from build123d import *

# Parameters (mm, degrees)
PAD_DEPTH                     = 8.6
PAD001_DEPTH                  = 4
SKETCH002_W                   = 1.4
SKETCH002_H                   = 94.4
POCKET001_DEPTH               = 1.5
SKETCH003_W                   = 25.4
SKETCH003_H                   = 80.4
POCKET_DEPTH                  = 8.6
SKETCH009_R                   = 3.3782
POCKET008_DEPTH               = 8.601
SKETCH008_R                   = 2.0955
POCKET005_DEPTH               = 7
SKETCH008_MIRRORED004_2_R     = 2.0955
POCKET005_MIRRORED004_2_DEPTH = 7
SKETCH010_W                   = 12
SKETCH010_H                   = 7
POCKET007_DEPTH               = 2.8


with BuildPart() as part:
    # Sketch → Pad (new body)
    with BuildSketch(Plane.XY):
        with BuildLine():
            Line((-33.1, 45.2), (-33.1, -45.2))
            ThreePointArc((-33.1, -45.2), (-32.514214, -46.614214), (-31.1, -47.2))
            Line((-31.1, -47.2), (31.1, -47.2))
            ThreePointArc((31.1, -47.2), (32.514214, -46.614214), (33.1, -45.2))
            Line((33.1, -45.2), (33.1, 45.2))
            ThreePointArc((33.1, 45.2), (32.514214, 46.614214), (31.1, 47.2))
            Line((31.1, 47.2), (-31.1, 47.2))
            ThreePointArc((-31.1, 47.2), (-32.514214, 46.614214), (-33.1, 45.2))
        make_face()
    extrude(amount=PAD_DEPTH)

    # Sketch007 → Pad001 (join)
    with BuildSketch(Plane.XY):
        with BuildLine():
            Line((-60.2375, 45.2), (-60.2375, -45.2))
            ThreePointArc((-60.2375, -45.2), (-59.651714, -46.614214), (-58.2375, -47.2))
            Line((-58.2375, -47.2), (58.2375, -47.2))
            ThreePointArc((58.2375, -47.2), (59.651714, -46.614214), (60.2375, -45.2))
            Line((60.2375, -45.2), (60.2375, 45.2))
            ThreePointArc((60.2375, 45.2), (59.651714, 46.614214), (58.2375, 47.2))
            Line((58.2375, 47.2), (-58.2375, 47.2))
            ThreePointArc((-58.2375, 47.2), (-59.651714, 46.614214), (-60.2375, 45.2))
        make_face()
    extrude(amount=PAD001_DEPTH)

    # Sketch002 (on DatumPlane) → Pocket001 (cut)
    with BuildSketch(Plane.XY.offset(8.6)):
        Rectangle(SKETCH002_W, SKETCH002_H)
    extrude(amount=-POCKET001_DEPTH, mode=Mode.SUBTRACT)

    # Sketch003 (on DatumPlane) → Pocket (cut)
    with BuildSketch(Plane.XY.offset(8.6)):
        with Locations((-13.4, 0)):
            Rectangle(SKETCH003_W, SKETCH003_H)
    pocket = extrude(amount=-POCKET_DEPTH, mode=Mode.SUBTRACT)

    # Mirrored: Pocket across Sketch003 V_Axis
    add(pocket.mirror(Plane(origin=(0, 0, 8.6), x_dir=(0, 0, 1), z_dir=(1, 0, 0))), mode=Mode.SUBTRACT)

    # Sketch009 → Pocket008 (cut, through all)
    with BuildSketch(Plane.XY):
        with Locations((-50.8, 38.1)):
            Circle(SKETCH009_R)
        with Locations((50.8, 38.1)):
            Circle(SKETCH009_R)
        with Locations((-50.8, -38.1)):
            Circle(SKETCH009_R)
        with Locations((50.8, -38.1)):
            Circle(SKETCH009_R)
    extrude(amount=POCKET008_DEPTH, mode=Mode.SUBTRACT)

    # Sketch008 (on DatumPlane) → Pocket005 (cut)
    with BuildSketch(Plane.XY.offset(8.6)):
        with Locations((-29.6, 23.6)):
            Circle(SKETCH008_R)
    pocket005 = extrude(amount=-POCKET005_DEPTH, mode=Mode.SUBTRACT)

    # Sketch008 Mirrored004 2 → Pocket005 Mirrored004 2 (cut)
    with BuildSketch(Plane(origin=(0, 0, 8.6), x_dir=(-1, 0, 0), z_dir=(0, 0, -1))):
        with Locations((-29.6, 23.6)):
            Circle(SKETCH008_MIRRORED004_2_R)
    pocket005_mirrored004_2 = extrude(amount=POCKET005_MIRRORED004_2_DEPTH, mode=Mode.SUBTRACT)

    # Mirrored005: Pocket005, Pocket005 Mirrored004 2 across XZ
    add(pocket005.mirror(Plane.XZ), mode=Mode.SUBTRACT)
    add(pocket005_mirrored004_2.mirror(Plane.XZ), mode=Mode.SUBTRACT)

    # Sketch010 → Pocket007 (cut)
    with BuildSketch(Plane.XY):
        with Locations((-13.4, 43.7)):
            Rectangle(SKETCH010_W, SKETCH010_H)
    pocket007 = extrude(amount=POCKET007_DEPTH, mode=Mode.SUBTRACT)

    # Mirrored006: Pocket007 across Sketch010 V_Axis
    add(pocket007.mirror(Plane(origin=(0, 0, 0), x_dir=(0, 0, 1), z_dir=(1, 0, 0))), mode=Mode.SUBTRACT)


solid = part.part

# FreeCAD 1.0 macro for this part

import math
import FreeCAD as App
import Part
import Sketcher


def add_polygon(sketch, points):
    """Adds a closed chain of lines whose ends are joined by coincident constraints."""
    first, n = sketch.GeometryCount, len(points)
    for a, b in zip(points, points[1:] + points[:1]):
        sketch.addGeometry(Part.LineSegment(App.Vector(*a, 0), App.Vector(*b, 0)), False)
    for i in range(n):
        sketch.addConstraint(Sketcher.Constraint("Coincident", first + i, 2, first + (i + 1) % n, 1))

doc = App.newDocument("Part")
params = doc.addObject("Spreadsheet::Sheet", "Params")
for row, (alias, value) in enumerate([
    ("sketch1_radius", "1.999999 mm"),
    ("sketch1_width", "62.2 mm"),
    ("sketch1_height", "90.4 mm"),
    ("pad1_length", "8.6 mm"),
    ("sketch2_radius", "1.999999 mm"),
    ("sketch2_height", "90.4 mm"),
    ("pad2_length", "4 mm"),
    ("sketch3_width", "1.4 mm"),
    ("sketch3_height", "94.4 mm"),
    ("pocket1_length", "1.5 mm"),
    ("sketch4_width", "25.4 mm"),
    ("sketch4_height", "80.4 mm"),
    ("pocket2_length", "8.6 mm"),
    ("pocket4_length", "7 mm"),
    ("pocket5_length", "7 mm"),
    ("sketch8_width", "12 mm"),
    ("sketch8_height", "7 mm"),
    ("pocket6_length", "2.8 mm"),
], start=1):
    params.set(f"A{row}", alias)
    params.set(f"B{row}", "=" + value)
    params.setAlias(f"B{row}", alias)

body = doc.addObject("PartDesign::Body", "Body")

# Sketch on XY plane
sketch1 = body.newObject("Sketcher::SketchObject", "Sketch")
sketch1.AttachmentSupport = (doc.getObject("XY_Plane"), [""])
sketch1.MapMode = "FlatFace"
sketch1.addGeometry([
    Part.LineSegment(App.Vector(-33.1, 45.2, 0), App.Vector(-33.1, -45.2, 0)),  # 0
    Part.ArcOfCircle(Part.Circle(App.Vector(-31.1, -45.2, 0), App.Vector(0, 0, 1), 2), math.radians(180), math.radians(270)),  # 1
    Part.LineSegment(App.Vector(-31.1, -47.2, 0), App.Vector(31.1, -47.2, 0)),  # 2
    Part.ArcOfCircle(Part.Circle(App.Vector(31.1, -45.2, 0), App.Vector(0, 0, 1), 2), math.radians(-90), math.radians(0)),  # 3
    Part.LineSegment(App.Vector(33.1, -45.2, 0), App.Vector(33.1, 45.2, 0)),  # 4
    Part.ArcOfCircle(Part.Circle(App.Vector(31.1, 45.2, 0), App.Vector(0, 0, 1), 2), math.radians(0), math.radians(90)),  # 5
    Part.LineSegment(App.Vector(31.1, 47.2, 0), App.Vector(-31.1, 47.2, 0)),  # 6
    Part.ArcOfCircle(Part.Circle(App.Vector(-31.1, 45.2, 0), App.Vector(0, 0, 1), 2), math.radians(90), math.radians(180)),  # 7
], False)
sketch1.addConstraint([
    Sketcher.Constraint("Tangent", 0, 2, 1, 1),
    Sketcher.Constraint("Tangent", 1, 2, 2, 1),
    Sketcher.Constraint("Tangent", 2, 2, 3, 1),
    Sketcher.Constraint("Tangent", 3, 2, 4, 1),
    Sketcher.Constraint("Tangent", 4, 2, 5, 1),
    Sketcher.Constraint("Tangent", 5, 2, 6, 1),
    Sketcher.Constraint("Tangent", 6, 2, 7, 1),
    Sketcher.Constraint("Tangent", 7, 2, 0, 1),
    Sketcher.Constraint("Vertical", 0),
    Sketcher.Constraint("Horizontal", 2),
    Sketcher.Constraint("Vertical", 4),
    Sketcher.Constraint("Horizontal", 6),
    Sketcher.Constraint("Equal", 1, 3),
    Sketcher.Constraint("Equal", 3, 5),
    Sketcher.Constraint("Equal", 5, 7),
    Sketcher.Constraint("Symmetric", 1, 3, 5, 3, -1, 1),
    Sketcher.Constraint("Radius", 1, 1.999999),
    Sketcher.Constraint("DistanceX", 2, 1, 2, 2, 62.2),
    Sketcher.Constraint("DistanceY", 0, 2, 0, 1, 90.4),
])
sketch1.setExpression("Constraints[16]", "Params.sketch1_radius")
sketch1.setExpression("Constraints[17]", "Params.sketch1_width")
sketch1.setExpression("Constraints[18]", "Params.sketch1_height")
pad1 = body.newObject("PartDesign::Pad", "Pad")
pad1.Profile = sketch1
pad1.setExpression("Length", "Params.pad1_length")

# Sketch on XY plane
sketch2 = body.newObject("Sketcher::SketchObject", "Sketch001")
sketch2.AttachmentSupport = (doc.getObject("XY_Plane"), [""])
sketch2.MapMode = "FlatFace"
sketch2.addGeometry([
    Part.LineSegment(App.Vector(-60.2, 45.2, 0), App.Vector(-60.2, -45.2, 0)),  # 0
    Part.ArcOfCircle(Part.Circle(App.Vector(-58.2, -45.2, 0), App.Vector(0, 0, 1), 2), math.radians(180), math.radians(270)),  # 1
    Part.LineSegment(App.Vector(-58.2, -47.2, 0), App.Vector(58.2, -47.2, 0)),  # 2
    Part.ArcOfCircle(Part.Circle(App.Vector(58.2, -45.2, 0), App.Vector(0, 0, 1), 2), math.radians(-90), math.radians(0)),  # 3
    Part.LineSegment(App.Vector(60.2, -45.2, 0), App.Vector(60.2, 45.2, 0)),  # 4
    Part.ArcOfCircle(Part.Circle(App.Vector(58.2, 45.2, 0), App.Vector(0, 0, 1), 2), math.radians(0), math.radians(90)),  # 5
    Part.LineSegment(App.Vector(58.2, 47.2, 0), App.Vector(-58.2, 47.2, 0)),  # 6
    Part.ArcOfCircle(Part.Circle(App.Vector(-58.2, 45.2, 0), App.Vector(0, 0, 1), 2), math.radians(90), math.radians(180)),  # 7
], False)
sketch2.addConstraint([
    Sketcher.Constraint("Tangent", 0, 2, 1, 1),
    Sketcher.Constraint("Tangent", 1, 2, 2, 1),
    Sketcher.Constraint("Tangent", 2, 2, 3, 1),
    Sketcher.Constraint("Tangent", 3, 2, 4, 1),
    Sketcher.Constraint("Tangent", 4, 2, 5, 1),
    Sketcher.Constraint("Tangent", 5, 2, 6, 1),
    Sketcher.Constraint("Tangent", 6, 2, 7, 1),
    Sketcher.Constraint("Tangent", 7, 2, 0, 1),
    Sketcher.Constraint("Vertical", 0),
    Sketcher.Constraint("Horizontal", 2),
    Sketcher.Constraint("Vertical", 4),
    Sketcher.Constraint("Horizontal", 6),
    Sketcher.Constraint("Equal", 1, 3),
    Sketcher.Constraint("Equal", 3, 5),
    Sketcher.Constraint("Equal", 5, 7),
    Sketcher.Constraint("Symmetric", 1, 3, 5, 3, -1, 1),
    Sketcher.Constraint("Radius", 1, 1.999999),
    Sketcher.Constraint("DistanceY", 0, 2, 0, 1, 90.4),
    Sketcher.Constraint("DistanceX", 2, 1, 2, 2, 116.475),
])
sketch2.setExpression("Constraints[16]", "Params.sketch2_radius")
sketch2.setExpression("Constraints[17]", "Params.sketch2_height")
pad2 = body.newObject("PartDesign::Pad", "Pad001")
pad2.Profile = sketch2
pad2.setExpression("Length", "Params.pad2_length")

# Sketch on XY plane
sketch3 = body.newObject("Sketcher::SketchObject", "Sketch002")
sketch3.AttachmentSupport = (doc.getObject("XY_Plane"), [""])
sketch3.MapMode = "FlatFace"
sketch3.AttachmentOffset = App.Placement(App.Vector(0, 0, 8.6), App.Rotation())
add_polygon(sketch3, [(-0.7, 47.2), (-0.7, -47.2), (0.7, -47.2), (0.7, 47.2)])  # lines 0-3
sketch3.addConstraint([
    Sketcher.Constraint("Vertical", 0),
    Sketcher.Constraint("Horizontal", 1),
    Sketcher.Constraint("Vertical", 2),
    Sketcher.Constraint("Horizontal", 3),
    Sketcher.Constraint("Symmetric", 0, 2, 2, 2, -1, 1),
    Sketcher.Constraint("DistanceX", 1, 1, 1, 2, 1.4),
    Sketcher.Constraint("DistanceY", 0, 2, 0, 1, 94.4),
])
sketch3.setExpression("Constraints[9]", "Params.sketch3_width")
sketch3.setExpression("Constraints[10]", "Params.sketch3_height")
pocket1 = body.newObject("PartDesign::Pocket", "Pocket")
pocket1.Profile = sketch3
pocket1.setExpression("Length", "Params.pocket1_length")

# Sketch on XY plane
sketch4 = body.newObject("Sketcher::SketchObject", "Sketch003")
sketch4.AttachmentSupport = (doc.getObject("XY_Plane"), [""])
sketch4.MapMode = "FlatFace"
sketch4.AttachmentOffset = App.Placement(App.Vector(0, 0, 8.6), App.Rotation())
add_polygon(sketch4, [(-26, 40), (-26, -40), (-1, -40), (-1, 40)])  # lines 0-3
sketch4.addConstraint([
    Sketcher.Constraint("Vertical", 0),
    Sketcher.Constraint("Horizontal", 1),
    Sketcher.Constraint("Vertical", 2),
    Sketcher.Constraint("Horizontal", 3),
    Sketcher.Constraint("DistanceX", 1, 1, 1, 2, 25.4),
    Sketcher.Constraint("DistanceY", 0, 2, 0, 1, 80.4),
    Sketcher.Constraint("DistanceX", 0, 2, -1, 1, 26.1),
    Sketcher.Constraint("DistanceY", 0, 2, -1, 1, 40.2),
])
sketch4.setExpression("Constraints[8]", "Params.sketch4_width")
sketch4.setExpression("Constraints[9]", "Params.sketch4_height")
pocket2 = body.newObject("PartDesign::Pocket", "Pocket001")
pocket2.Profile = sketch4
pocket2.setExpression("Length", "Params.pocket2_length")
doc.recompute()

mirrored = body.newObject("PartDesign::Mirrored", "Mirrored")
mirrored.Originals = [pocket2]
mirrored.MirrorPlane = (doc.getObject("YZ_Plane"), [""])
body.Tip = mirrored

# Sketch on XY plane
sketch5 = body.newObject("Sketcher::SketchObject", "Sketch004")
sketch5.AttachmentSupport = (doc.getObject("XY_Plane"), [""])
sketch5.MapMode = "FlatFace"
sketch5.addGeometry([
    Part.Circle(App.Vector(-50.8, 38.1, 0), App.Vector(0, 0, 1), 3.4),
    Part.Circle(App.Vector(50.8, 38.1, 0), App.Vector(0, 0, 1), 3.4),
    Part.Circle(App.Vector(-50.8, -38.1, 0), App.Vector(0, 0, 1), 3.4),
    Part.Circle(App.Vector(50.8, -38.1, 0), App.Vector(0, 0, 1), 3.4),
], False)
sketch5.addConstraint([
    Sketcher.Constraint("Equal", 0, 1),
    Sketcher.Constraint("Equal", 1, 2),
    Sketcher.Constraint("Equal", 2, 3),
    Sketcher.Constraint("Symmetric", 1, 3, 2, 3, -1, 1),
    Sketcher.Constraint("Symmetric", 0, 3, 3, 3, -1, 1),
    Sketcher.Constraint("Symmetric", 0, 3, 1, 3, -2),
    Sketcher.Constraint("Diameter", 0, 6.7564),
    Sketcher.Constraint("DistanceX", 0, 3, -1, 1, 50.8),
    Sketcher.Constraint("DistanceY", -1, 1, 0, 3, 38.1),
])
pocket3 = body.newObject("PartDesign::Pocket", "Pocket002")
pocket3.Profile = sketch5
pocket3.Type = "ThroughAll"
pocket3.Reversed = True

# Sketch on XY plane
sketch6 = body.newObject("Sketcher::SketchObject", "Sketch005")
sketch6.AttachmentSupport = (doc.getObject("XY_Plane"), [""])
sketch6.MapMode = "FlatFace"
sketch6.AttachmentOffset = App.Placement(App.Vector(0, 0, 8.6), App.Rotation())
sketch6.addGeometry(Part.Circle(App.Vector(-29.6, 23.6, 0), App.Vector(0, 0, 1), 2.1), False)
sketch6.addConstraint([
    Sketcher.Constraint("Diameter", 0, 4.191),
    Sketcher.Constraint("DistanceX", 0, 3, -1, 1, 29.6),
    Sketcher.Constraint("DistanceY", -1, 1, 0, 3, 23.6),
])
pocket4 = body.newObject("PartDesign::Pocket", "Pocket003")
pocket4.Profile = sketch6
pocket4.setExpression("Length", "Params.pocket4_length")

# Sketch on XY plane
sketch7 = body.newObject("Sketcher::SketchObject", "Sketch006")
sketch7.AttachmentSupport = (doc.getObject("XY_Plane"), [""])
sketch7.MapMode = "FlatFace"
sketch7.AttachmentOffset = App.Placement(App.Vector(0, 0, 8.6), App.Rotation())
sketch7.addGeometry(Part.Circle(App.Vector(29.6, 23.6, 0), App.Vector(0, 0, 1), 2.1), False)
sketch7.addConstraint([
    Sketcher.Constraint("Diameter", 0, 4.191),
    Sketcher.Constraint("DistanceX", -1, 1, 0, 3, 29.6),
    Sketcher.Constraint("DistanceY", -1, 1, 0, 3, 23.6),
])
pocket5 = body.newObject("PartDesign::Pocket", "Pocket004")
pocket5.Profile = sketch7
pocket5.setExpression("Length", "Params.pocket5_length")
doc.recompute()

mirrored2 = body.newObject("PartDesign::Mirrored", "Mirrored001")
mirrored2.Originals = [pocket4, pocket5]
mirrored2.MirrorPlane = (doc.getObject("XZ_Plane"), [""])
body.Tip = mirrored2

# Sketch on XY plane
sketch8 = body.newObject("Sketcher::SketchObject", "Sketch007")
sketch8.AttachmentSupport = (doc.getObject("XY_Plane"), [""])
sketch8.MapMode = "FlatFace"
add_polygon(sketch8, [(-19, 47), (-19, 40), (-7, 40), (-7, 47)])  # lines 0-3
sketch8.addConstraint([
    Sketcher.Constraint("Vertical", 0),
    Sketcher.Constraint("Horizontal", 1),
    Sketcher.Constraint("Vertical", 2),
    Sketcher.Constraint("Horizontal", 3),
    Sketcher.Constraint("DistanceX", 1, 1, 1, 2, 12.0),
    Sketcher.Constraint("DistanceY", 0, 2, 0, 1, 7.0),
    Sketcher.Constraint("DistanceX", 0, 2, -1, 1, 19.4),
    Sketcher.Constraint("DistanceY", -1, 1, 0, 2, 40.2),
])
sketch8.setExpression("Constraints[8]", "Params.sketch8_width")
sketch8.setExpression("Constraints[9]", "Params.sketch8_height")
pocket6 = body.newObject("PartDesign::Pocket", "Pocket005")
pocket6.Profile = sketch8
pocket6.setExpression("Length", "Params.pocket6_length")
pocket6.Reversed = True
doc.recompute()

mirrored3 = body.newObject("PartDesign::Mirrored", "Mirrored002")
mirrored3.Originals = [pocket6]
mirrored3.MirrorPlane = (doc.getObject("YZ_Plane"), [""])
body.Tip = mirrored3

doc.recompute()
